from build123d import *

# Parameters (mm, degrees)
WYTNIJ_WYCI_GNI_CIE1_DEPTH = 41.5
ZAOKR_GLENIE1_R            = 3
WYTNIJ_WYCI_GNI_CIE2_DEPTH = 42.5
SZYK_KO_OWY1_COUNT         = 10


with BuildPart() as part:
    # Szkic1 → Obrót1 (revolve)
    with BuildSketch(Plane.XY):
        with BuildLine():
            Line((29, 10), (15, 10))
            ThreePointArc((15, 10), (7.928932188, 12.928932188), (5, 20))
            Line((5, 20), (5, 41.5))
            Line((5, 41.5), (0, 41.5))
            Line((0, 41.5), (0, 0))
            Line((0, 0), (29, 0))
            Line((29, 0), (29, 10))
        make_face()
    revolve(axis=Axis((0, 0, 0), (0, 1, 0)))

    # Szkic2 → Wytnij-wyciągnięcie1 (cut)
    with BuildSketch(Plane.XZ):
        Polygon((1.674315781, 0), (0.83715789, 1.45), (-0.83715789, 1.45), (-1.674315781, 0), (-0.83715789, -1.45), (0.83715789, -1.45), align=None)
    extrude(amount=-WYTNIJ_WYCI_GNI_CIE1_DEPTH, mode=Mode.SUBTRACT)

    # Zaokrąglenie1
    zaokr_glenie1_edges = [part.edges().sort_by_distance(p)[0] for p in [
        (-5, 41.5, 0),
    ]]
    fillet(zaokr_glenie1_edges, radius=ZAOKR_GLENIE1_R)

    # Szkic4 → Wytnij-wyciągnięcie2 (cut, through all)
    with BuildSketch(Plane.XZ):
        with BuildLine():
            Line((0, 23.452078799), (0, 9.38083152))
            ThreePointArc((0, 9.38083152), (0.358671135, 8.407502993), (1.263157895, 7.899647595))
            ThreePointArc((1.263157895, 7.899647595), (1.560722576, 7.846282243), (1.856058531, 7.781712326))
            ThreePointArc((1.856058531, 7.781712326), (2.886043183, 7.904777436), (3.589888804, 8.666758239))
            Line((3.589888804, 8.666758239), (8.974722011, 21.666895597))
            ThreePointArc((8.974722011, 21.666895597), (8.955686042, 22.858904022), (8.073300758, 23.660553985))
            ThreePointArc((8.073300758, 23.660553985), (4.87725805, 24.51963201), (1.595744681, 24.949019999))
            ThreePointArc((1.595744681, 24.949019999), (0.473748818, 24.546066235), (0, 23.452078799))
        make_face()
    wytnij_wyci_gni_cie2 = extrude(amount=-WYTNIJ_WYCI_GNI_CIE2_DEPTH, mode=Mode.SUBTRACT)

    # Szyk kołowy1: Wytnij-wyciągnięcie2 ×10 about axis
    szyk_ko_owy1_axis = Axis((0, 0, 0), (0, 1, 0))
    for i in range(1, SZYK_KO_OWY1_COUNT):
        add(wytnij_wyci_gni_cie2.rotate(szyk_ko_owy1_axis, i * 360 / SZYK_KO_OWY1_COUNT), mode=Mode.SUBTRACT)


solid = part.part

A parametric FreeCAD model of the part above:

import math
import FreeCAD as App
import Part
import Sketcher
Q = App.Units.Quantity


def edges_at(feature, points):
    """Names of the edges that pass closest to the given points."""
    edges = feature.Shape.Edges
    near = lambda p: min(range(len(edges)), key=lambda i: edges[i].distToShape(Part.Vertex(*p))[0])
    return sorted({f"Edge{near(p) + 1}" for p in points})


def add_polygon(sketch, points):
    """Adds a closed chain of lines whose ends are joined by coincident constraints."""
    first, n = sketch.GeometryCount, len(points)
    for a, b in zip(points, points[1:] + points[:1]):
        sketch.addGeometry(Part.LineSegment(App.Vector(*a, 0), App.Vector(*b, 0)), False)
    for i in range(n):
        sketch.addConstraint(Sketcher.Constraint("Coincident", first + i, 2, first + (i + 1) % n, 1))

doc = App.newDocument("Part")
body = doc.addObject("PartDesign::Body", "Body")

sketch1 = doc.addObject("Sketcher::SketchObject", "Sketch")
body.addObject(sketch1)
sketch1.AttachmentSupport = (doc.XY_Plane, [""])
sketch1.MapMode = "FlatFace"
sketch1.addGeometry(Part.LineSegment(App.Vector(29, 10, 0), App.Vector(15, 10, 0)), False)
sketch1.addGeometry(Part.ArcOfCircle(Part.Circle(App.Vector(15, 20, 0), App.Vector(0, 0, 1), 10), math.radians(180), math.radians(270)), False)
sketch1.addGeometry(Part.LineSegment(App.Vector(5, 20, 0), App.Vector(5, 42, 0)), False)
sketch1.addGeometry(Part.LineSegment(App.Vector(5, 42, 0), App.Vector(0, 42, 0)), False)
sketch1.addGeometry(Part.LineSegment(App.Vector(0, 42, 0), App.Vector(0, 0, 0)), False)
sketch1.addGeometry(Part.LineSegment(App.Vector(0, 0, 0), App.Vector(29, 0, 0)), False)
sketch1.addGeometry(Part.LineSegment(App.Vector(29, 0, 0), App.Vector(29, 10, 0)), False)
sketch1.addConstraint(Sketcher.Constraint("Tangent", 0, 2, 1, 2))
sketch1.addConstraint(Sketcher.Constraint("Tangent", 1, 1, 2, 1))
sketch1.addConstraint(Sketcher.Constraint("Coincident", 2, 2, 3, 1))
sketch1.addConstraint(Sketcher.Constraint("Coincident", 3, 2, 4, 1))
sketch1.addConstraint(Sketcher.Constraint("Coincident", 4, 2, 5, 1))
sketch1.addConstraint(Sketcher.Constraint("Coincident", 5, 2, 6, 1))
sketch1.addConstraint(Sketcher.Constraint("Coincident", 6, 2, 0, 1))
sketch1.addConstraint(Sketcher.Constraint("Horizontal", 0))
sketch1.addConstraint(Sketcher.Constraint("Vertical", 2))
sketch1.addConstraint(Sketcher.Constraint("Horizontal", 3))
sketch1.addConstraint(Sketcher.Constraint("Vertical", 4))
sketch1.addConstraint(Sketcher.Constraint("Horizontal", 5))
sketch1.addConstraint(Sketcher.Constraint("Vertical", 6))
sketch1.addConstraint(Sketcher.Constraint("Coincident", 4, 2, -1, 1))
sketch1.addConstraint(Sketcher.Constraint("Radius", 1, Q("10 mm")))
sketch1.addConstraint(Sketcher.Constraint("DistanceX", 0, 2, 0, 1, Q("14 mm")))
sketch1.addConstraint(Sketcher.Constraint("DistanceX", 3, 2, 3, 1, Q("5 mm")))
sketch1.addConstraint(Sketcher.Constraint("DistanceY", 6, 1, 6, 2, Q("10 mm")))
sketch1.addConstraint(Sketcher.Constraint("DistanceY", 2, 1, 2, 2, Q("21.5 mm")))
revolution = doc.addObject("PartDesign::Revolution", "Revolution")
body.addObject(revolution)
revolution.Profile = sketch1
revolution.ReferenceAxis = (sketch1, ["V_Axis"])
revolution.Angle = 360

sketch2 = doc.addObject("Sketcher::SketchObject", "Sketch001")
body.addObject(sketch2)
sketch2.AttachmentSupport = (doc.XZ_Plane, [""])
sketch2.MapMode = "FlatFace"
add_polygon(sketch2, [(1.7, 0), (0.8, 1.4), (-0.8, 1.4), (-1.7, 0), (-0.8, -1.4), (0.8, -1.4)])
sketch2.addConstraint(Sketcher.Constraint("Horizontal", 1))
sketch2.addConstraint(Sketcher.Constraint("Horizontal", 4))
sketch2.addConstraint(Sketcher.Constraint("Symmetric", 0, 2, 3, 2, -1, 1))
sketch2.addConstraint(Sketcher.Constraint("Symmetric", 2, 2, 5, 2, -1, 1))
sketch2.addConstraint(Sketcher.Constraint("PointOnObject", 2, 2, -1))
sketch2.addConstraint(Sketcher.Constraint("Parallel", 2, 5))
sketch2.addConstraint(Sketcher.Constraint("Vertical", 1, 2, 3, 2))
sketch2.addConstraint(Sketcher.Constraint("Angle", 0, Q("120 deg")))
sketch2.addConstraint(Sketcher.Constraint("DistanceY", 3, 2, 1, 2, Q("2.9 mm")))
sketch2.addConstraint(Sketcher.Constraint("DistanceX", 1, 2, 1, 1, Q("1.674316 mm")))
pocket1 = doc.addObject("PartDesign::Pocket", "Pocket")
body.addObject(pocket1)
pocket1.Profile = sketch2
pocket1.Length = 41.5
doc.recompute()

fillet = doc.addObject("PartDesign::Fillet", "Fillet")
body.addObject(fillet)
fillet.Base = (pocket1, edges_at(pocket1, [(-5, 41.5, 0)]))
fillet.Radius = 3

sketch3 = doc.addObject("Sketcher::SketchObject", "Sketch002")
body.addObject(sketch3)
sketch3.AttachmentSupport = (doc.XZ_Plane, [""])
sketch3.MapMode = "FlatFace"
sketch3.addGeometry(Part.LineSegment(App.Vector(0, 23.5, 0), App.Vector(0, 9.4, 0)), False)
sketch3.addGeometry(Part.ArcOfCircle(Part.Circle(App.Vector(1.5, 9.4, 0), App.Vector(0, 0, 1), 1.5), math.radians(-180), math.radians(-99)), False)
sketch3.addGeometry(Part.ArcOfCircle(Part.Circle(App.Vector(0, 0, 0), App.Vector(0, 0, 1), 8), math.radians(76.58), math.radians(80.92)), False)
sketch3.addGeometry(Part.ArcOfCircle(Part.Circle(App.Vector(2.2, 9.2, 0), App.Vector(0, 0, 1), 1.5), math.radians(-103), math.radians(-23)), False)
sketch3.addGeometry(Part.LineSegment(App.Vector(3.6, 8.7, 0), App.Vector(9, 21.7, 0)), False)
sketch3.addGeometry(Part.ArcOfCircle(Part.Circle(App.Vector(7.6, 22.2, 0), App.Vector(0, 0, 1), 1.5), math.radians(-23), math.radians(71)), False)
sketch3.addGeometry(Part.ArcOfCircle(Part.Circle(App.Vector(0, 0, 0), App.Vector(0, 0, 1), 25), math.radians(71.16), math.radians(86.34)), False)
sketch3.addGeometry(Part.ArcOfCircle(Part.Circle(App.Vector(1.5, 23.5, 0), App.Vector(0, 0, 1), 1.5), math.radians(86), math.radians(180)), False)
sketch3.addConstraint(Sketcher.Constraint("Tangent", 0, 2, 1, 1))
sketch3.addConstraint(Sketcher.Constraint("Tangent", 1, 2, 2, 2))
sketch3.addConstraint(Sketcher.Constraint("Tangent", 2, 1, 3, 1))
sketch3.addConstraint(Sketcher.Constraint("Tangent", 3, 2, 4, 1))
sketch3.addConstraint(Sketcher.Constraint("Tangent", 4, 2, 5, 1))
sketch3.addConstraint(Sketcher.Constraint("Tangent", 5, 2, 6, 1))
sketch3.addConstraint(Sketcher.Constraint("Tangent", 6, 2, 7, 1))
sketch3.addConstraint(Sketcher.Constraint("Tangent", 7, 2, 0, 1))
sketch3.addConstraint(Sketcher.Constraint("Vertical", 0))
sketch3.addConstraint(Sketcher.Constraint("Coincident", 2, 3, -1, 1))
sketch3.addConstraint(Sketcher.Constraint("Coincident", 6, 3, -1, 1))
sketch3.addConstraint(Sketcher.Constraint("Equal", 1, 3))
sketch3.addConstraint(Sketcher.Constraint("Equal", 3, 5))
sketch3.addConstraint(Sketcher.Constraint("Equal", 5, 7))
sketch3.addConstraint(Sketcher.Constraint("PointOnObject", 0, 2, -2))
sketch3.addConstraint(Sketcher.Constraint("Radius", 2, Q("8 mm")))
sketch3.addConstraint(Sketcher.Constraint("Radius", 6, Q("25 mm")))
sketch3.addConstraint(Sketcher.Constraint("Radius", 1, Q("1.5 mm")))
sketch3.addConstraint(Sketcher.Constraint("Angle", 4, Q("67.5 deg")))
sketch3.addConstraint(Sketcher.Constraint("DistanceX", -1, 1, 5, 2, Q("8.073301 mm")))
pocket2 = doc.addObject("PartDesign::Pocket", "Pocket001")
body.addObject(pocket2)
pocket2.Profile = sketch3
pocket2.Type = "ThroughAll"
doc.recompute()

polarpattern = doc.addObject("PartDesign::PolarPattern", "PolarPattern")
body.addObject(polarpattern)
polarpattern.Originals = [pocket2]
polarpattern.Axis = (doc.Y_Axis, [""])
polarpattern.Angle = 360
polarpattern.Occurrences = 10
body.Tip = polarpattern

doc.recompute()
